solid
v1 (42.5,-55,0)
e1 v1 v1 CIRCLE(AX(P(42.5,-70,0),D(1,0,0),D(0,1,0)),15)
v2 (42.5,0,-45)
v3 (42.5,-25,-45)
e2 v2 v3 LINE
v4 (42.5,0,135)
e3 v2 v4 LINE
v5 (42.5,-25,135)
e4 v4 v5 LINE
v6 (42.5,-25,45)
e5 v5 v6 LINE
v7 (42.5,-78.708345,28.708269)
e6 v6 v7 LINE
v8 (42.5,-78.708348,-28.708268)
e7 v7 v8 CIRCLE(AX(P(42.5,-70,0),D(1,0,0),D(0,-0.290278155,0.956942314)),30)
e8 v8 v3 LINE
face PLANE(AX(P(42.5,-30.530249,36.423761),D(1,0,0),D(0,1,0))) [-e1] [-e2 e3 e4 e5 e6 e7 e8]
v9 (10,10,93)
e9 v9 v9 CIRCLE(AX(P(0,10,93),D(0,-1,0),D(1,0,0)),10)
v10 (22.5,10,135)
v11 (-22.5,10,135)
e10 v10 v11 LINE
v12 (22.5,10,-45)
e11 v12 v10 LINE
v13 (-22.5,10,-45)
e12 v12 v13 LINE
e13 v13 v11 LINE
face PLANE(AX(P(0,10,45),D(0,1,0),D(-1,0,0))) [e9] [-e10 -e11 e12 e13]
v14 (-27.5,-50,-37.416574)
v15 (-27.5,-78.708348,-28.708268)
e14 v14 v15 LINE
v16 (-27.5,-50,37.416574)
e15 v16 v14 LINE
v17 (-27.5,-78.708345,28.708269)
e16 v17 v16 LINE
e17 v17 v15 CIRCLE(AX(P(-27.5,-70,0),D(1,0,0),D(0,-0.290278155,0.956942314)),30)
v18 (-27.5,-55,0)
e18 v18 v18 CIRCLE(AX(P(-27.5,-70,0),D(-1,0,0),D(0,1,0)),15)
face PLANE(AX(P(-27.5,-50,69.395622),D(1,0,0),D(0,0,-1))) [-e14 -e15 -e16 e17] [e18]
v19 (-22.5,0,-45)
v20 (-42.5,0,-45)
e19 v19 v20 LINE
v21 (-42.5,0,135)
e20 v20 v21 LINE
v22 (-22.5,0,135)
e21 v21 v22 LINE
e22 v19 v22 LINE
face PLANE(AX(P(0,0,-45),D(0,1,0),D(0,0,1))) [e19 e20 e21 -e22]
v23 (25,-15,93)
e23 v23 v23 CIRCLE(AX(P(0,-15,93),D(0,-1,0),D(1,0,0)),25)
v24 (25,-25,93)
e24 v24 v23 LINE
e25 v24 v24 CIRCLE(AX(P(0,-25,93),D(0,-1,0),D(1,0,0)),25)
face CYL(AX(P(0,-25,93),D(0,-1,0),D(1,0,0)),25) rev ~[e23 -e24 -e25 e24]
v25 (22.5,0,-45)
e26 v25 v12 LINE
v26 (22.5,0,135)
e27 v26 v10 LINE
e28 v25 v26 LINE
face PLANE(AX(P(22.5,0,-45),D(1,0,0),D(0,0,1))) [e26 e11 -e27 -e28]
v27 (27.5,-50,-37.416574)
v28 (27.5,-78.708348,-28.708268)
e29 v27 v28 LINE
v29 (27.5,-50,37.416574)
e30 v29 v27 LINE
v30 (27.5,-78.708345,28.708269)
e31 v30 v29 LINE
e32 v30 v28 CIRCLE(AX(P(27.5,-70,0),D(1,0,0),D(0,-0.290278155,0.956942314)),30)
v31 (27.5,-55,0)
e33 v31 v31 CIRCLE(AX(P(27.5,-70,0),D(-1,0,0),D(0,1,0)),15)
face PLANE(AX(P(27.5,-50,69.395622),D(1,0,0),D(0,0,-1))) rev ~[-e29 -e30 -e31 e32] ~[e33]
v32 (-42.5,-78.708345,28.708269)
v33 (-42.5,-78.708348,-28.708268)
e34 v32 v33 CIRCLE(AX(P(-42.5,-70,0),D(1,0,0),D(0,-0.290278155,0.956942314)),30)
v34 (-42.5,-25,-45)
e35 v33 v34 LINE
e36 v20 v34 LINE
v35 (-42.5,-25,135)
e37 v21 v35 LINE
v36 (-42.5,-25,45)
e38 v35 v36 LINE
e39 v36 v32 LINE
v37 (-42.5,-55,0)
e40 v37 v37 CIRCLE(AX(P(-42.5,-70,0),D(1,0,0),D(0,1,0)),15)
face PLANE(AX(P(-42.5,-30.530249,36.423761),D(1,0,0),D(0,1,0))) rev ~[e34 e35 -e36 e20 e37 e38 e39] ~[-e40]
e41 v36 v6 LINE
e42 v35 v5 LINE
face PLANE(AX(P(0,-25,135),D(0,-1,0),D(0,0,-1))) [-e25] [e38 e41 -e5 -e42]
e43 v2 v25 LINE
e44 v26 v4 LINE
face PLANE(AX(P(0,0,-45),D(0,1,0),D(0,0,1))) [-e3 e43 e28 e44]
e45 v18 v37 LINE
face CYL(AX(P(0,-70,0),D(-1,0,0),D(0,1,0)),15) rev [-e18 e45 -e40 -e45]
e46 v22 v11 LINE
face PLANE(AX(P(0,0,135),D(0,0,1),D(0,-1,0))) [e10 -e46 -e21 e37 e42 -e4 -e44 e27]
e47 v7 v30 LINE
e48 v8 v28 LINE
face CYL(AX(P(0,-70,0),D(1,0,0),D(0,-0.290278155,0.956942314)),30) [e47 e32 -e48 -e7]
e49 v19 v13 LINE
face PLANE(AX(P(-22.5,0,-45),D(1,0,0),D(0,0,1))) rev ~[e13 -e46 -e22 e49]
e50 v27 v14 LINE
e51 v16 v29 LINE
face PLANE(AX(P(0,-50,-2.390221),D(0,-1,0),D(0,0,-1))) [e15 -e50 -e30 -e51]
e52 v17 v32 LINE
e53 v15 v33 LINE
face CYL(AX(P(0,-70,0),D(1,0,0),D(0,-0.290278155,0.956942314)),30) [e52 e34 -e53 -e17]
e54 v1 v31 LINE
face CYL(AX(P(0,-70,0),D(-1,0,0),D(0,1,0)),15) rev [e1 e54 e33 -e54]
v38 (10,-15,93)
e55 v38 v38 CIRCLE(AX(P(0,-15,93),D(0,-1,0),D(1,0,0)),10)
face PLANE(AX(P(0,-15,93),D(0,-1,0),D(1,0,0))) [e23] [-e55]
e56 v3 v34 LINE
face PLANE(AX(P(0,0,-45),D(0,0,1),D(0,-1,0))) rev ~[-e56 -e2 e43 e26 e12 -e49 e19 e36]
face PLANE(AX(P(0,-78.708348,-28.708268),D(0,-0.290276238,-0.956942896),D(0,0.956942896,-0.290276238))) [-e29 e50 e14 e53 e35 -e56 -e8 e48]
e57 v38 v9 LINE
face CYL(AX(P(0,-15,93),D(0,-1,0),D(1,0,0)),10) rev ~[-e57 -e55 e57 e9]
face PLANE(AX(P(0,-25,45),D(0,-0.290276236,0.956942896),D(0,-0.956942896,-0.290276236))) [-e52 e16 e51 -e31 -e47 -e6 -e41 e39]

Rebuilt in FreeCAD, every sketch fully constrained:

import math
import FreeCAD as App
import Part
import Sketcher
from FreeCAD import Vector
Q = App.Units.Quantity


def add_polygon(sketch, points):
    """Adds a closed chain of lines whose ends are joined by coincident constraints."""
    first, n = sketch.GeometryCount, len(points)
    for a, b in zip(points, points[1:] + points[:1]):
        sketch.addGeometry(Part.LineSegment(App.Vector(*a, 0), App.Vector(*b, 0)), False)
    for i in range(n):
        sketch.addConstraint(Sketcher.Constraint("Coincident", first + i, 2, first + (i + 1) % n, 1))

doc = App.newDocument("Part")
body = doc.addObject("PartDesign::Body", "Body")

sketch1 = body.newObject("Sketcher::SketchObject", "Sketch")
sketch1.AttachmentSupport = (doc.getObject("XZ_Plane"), [""])
sketch1.MapMode = "FlatFace"
sketch1.AttachmentOffset = App.Placement(Vector(0, 0, 50), App.Rotation())
add_polygon(sketch1, [(28, 69), (-28, 69), (-28, -74), (28, -74)])
sketch1.addConstraint([
    Sketcher.Constraint("Horizontal", 0),
    Sketcher.Constraint("Vertical", 1),
    Sketcher.Constraint("Horizontal", 2),
    Sketcher.Constraint("Vertical", 3),
    Sketcher.Constraint("DistanceX", 0, 2, 0, 1, Q("55 mm")),
    Sketcher.Constraint("DistanceX", 0, 2, -1, 1, Q("27.5 mm")),
    Sketcher.Constraint("DistanceY", 1, 2, 1, 1, Q("143.571686 mm")),
    Sketcher.Constraint("DistanceY", -1, 1, 0, 2, Q("69.395622 mm")),
])
pad1 = body.newObject("PartDesign::Pad", "Pad")
pad1.Profile = sketch1
pad1.Length = 60
body2 = doc.addObject("PartDesign::Body", "Body001")

sketch2 = body2.newObject("Sketcher::SketchObject", "Sketch001")
sketch2.AttachmentSupport = (doc.getObject("YZ_Plane001"), [""])
sketch2.MapMode = "FlatFace"
sketch2.addGeometry([
    Part.LineSegment(Vector(0, -45, 0), Vector(0, 135, 0)),
    Part.LineSegment(Vector(0, 135, 0), Vector(-25, 135, 0)),
    Part.LineSegment(Vector(-25, 135, 0), Vector(-25, 45, 0)),
    Part.LineSegment(Vector(-25, 45, 0), Vector(-79, 29, 0)),
    Part.ArcOfCircle(Part.Circle(Vector(-70, 0, 0), Vector(0, 0, 1), 30), math.radians(107), math.radians(253)),
    Part.LineSegment(Vector(-79, -29, 0), Vector(-25, -45, 0)),
    Part.LineSegment(Vector(-25, -45, 0), Vector(0, -45, 0)),
    Part.Circle(Vector(-70, 0, 0), Vector(0, 0, 1), 15),
], False)
sketch2.addConstraint([
    Sketcher.Constraint("Coincident", 0, 2, 1, 1),
    Sketcher.Constraint("Coincident", 1, 2, 2, 1),
    Sketcher.Constraint("Coincident", 2, 2, 3, 1),
    Sketcher.Constraint("Coincident", 3, 2, 4, 1),
    Sketcher.Constraint("Coincident", 4, 2, 5, 1),
    Sketcher.Constraint("Coincident", 5, 2, 6, 1),
    Sketcher.Constraint("Coincident", 6, 2, 0, 1),
    Sketcher.Constraint("Vertical", 0),
    Sketcher.Constraint("Horizontal", 1),
    Sketcher.Constraint("Vertical", 2),
    Sketcher.Constraint("Horizontal", 6),
    Sketcher.Constraint("Coincident", 7, 3, 4, 3),
    Sketcher.Constraint("Symmetric", 3, 2, 4, 2, -1),
    Sketcher.Constraint("Symmetric", 2, 2, 5, 2, -1),
    Sketcher.Constraint("PointOnObject", 0, 2, -2),
    Sketcher.Constraint("Diameter", 7, Q("30 mm")),
    Sketcher.Constraint("Radius", 4, Q("30 mm")),
    Sketcher.Constraint("DistanceX", 1, 2, 1, 1, Q("25 mm")),
    Sketcher.Constraint("DistanceY", 0, 1, 0, 2, Q("180 mm")),
    Sketcher.Constraint("DistanceY", 2, 2, 2, 1, Q("90 mm")),
    Sketcher.Constraint("DistanceX", 4, 3, -1, 1, Q("70 mm")),
    Sketcher.Constraint("Distance", 3, Q("56.124922 mm")),
])
pad2 = body2.newObject("PartDesign::Pad", "Pad001")
pad2.Profile = sketch2
pad2.Length = 85
pad2.Midplane = True
doc.recompute()

boolean = body2.newObject("PartDesign::Boolean", "Boolean")
boolean.Type = "Cut"
boolean.addObjects([body])

sketch3 = body2.newObject("Sketcher::SketchObject", "Sketch002")
sketch3.AttachmentSupport = (doc.getObject("XZ_Plane001"), [""])
sketch3.MapMode = "FlatFace"
add_polygon(sketch3, [(22, 135), (22, -45), (-22, -45), (-22, 135)])
sketch3.addConstraint([
    Sketcher.Constraint("Vertical", 0),
    Sketcher.Constraint("Horizontal", 1),
    Sketcher.Constraint("Vertical", 2),
    Sketcher.Constraint("Horizontal", 3),
    Sketcher.Constraint("DistanceX", 1, 2, 1, 1, Q("45 mm")),
    Sketcher.Constraint("DistanceY", 0, 2, 0, 1, Q("180 mm")),
    Sketcher.Constraint("DistanceY", 0, 2, -1, 1, Q("45 mm")),
    Sketcher.Constraint("DistanceX", -1, 1, 0, 2, Q("22.5 mm")),
])
pad3 = body2.newObject("PartDesign::Pad", "Pad002")
pad3.Profile = sketch3
pad3.Length = 10
pad3.Reversed = True

sketch4 = body2.newObject("Sketcher::SketchObject", "Sketch003")
sketch4.AttachmentSupport = (doc.getObject("XZ_Plane001"), [""])
sketch4.MapMode = "FlatFace"
sketch4.AttachmentOffset = App.Placement(Vector(0, 0, 25), App.Rotation())
sketch4.addGeometry(Part.Circle(Vector(0, 93, 0), Vector(0, 0, 1), 25), False)
sketch4.addConstraint([
    Sketcher.Constraint("PointOnObject", 0, 3, -2),
    Sketcher.Constraint("Diameter", 0, Q("50 mm")),
    Sketcher.Constraint("DistanceY", -1, 1, 0, 3, Q("93 mm")),
])
pocket1 = body2.newObject("PartDesign::Pocket", "Pocket")
pocket1.Profile = sketch4
pocket1.Length = 10

sketch5 = body2.newObject("Sketcher::SketchObject", "Sketch004")
sketch5.AttachmentSupport = (doc.getObject("XZ_Plane001"), [""])
sketch5.MapMode = "FlatFace"
sketch5.AttachmentOffset = App.Placement(Vector(0, 0, 15), App.Rotation())
sketch5.addGeometry(Part.Circle(Vector(0, 93, 0), Vector(0, 0, 1), 10), False)
sketch5.addConstraint([
    Sketcher.Constraint("PointOnObject", 0, 3, -2),
    Sketcher.Constraint("Diameter", 0, Q("20 mm")),
    Sketcher.Constraint("DistanceY", -1, 1, 0, 3, Q("93 mm")),
])
pocket2 = body2.newObject("PartDesign::Pocket", "Pocket001")
pocket2.Profile = sketch5
pocket2.Type = "ThroughAll"

doc.recompute()
